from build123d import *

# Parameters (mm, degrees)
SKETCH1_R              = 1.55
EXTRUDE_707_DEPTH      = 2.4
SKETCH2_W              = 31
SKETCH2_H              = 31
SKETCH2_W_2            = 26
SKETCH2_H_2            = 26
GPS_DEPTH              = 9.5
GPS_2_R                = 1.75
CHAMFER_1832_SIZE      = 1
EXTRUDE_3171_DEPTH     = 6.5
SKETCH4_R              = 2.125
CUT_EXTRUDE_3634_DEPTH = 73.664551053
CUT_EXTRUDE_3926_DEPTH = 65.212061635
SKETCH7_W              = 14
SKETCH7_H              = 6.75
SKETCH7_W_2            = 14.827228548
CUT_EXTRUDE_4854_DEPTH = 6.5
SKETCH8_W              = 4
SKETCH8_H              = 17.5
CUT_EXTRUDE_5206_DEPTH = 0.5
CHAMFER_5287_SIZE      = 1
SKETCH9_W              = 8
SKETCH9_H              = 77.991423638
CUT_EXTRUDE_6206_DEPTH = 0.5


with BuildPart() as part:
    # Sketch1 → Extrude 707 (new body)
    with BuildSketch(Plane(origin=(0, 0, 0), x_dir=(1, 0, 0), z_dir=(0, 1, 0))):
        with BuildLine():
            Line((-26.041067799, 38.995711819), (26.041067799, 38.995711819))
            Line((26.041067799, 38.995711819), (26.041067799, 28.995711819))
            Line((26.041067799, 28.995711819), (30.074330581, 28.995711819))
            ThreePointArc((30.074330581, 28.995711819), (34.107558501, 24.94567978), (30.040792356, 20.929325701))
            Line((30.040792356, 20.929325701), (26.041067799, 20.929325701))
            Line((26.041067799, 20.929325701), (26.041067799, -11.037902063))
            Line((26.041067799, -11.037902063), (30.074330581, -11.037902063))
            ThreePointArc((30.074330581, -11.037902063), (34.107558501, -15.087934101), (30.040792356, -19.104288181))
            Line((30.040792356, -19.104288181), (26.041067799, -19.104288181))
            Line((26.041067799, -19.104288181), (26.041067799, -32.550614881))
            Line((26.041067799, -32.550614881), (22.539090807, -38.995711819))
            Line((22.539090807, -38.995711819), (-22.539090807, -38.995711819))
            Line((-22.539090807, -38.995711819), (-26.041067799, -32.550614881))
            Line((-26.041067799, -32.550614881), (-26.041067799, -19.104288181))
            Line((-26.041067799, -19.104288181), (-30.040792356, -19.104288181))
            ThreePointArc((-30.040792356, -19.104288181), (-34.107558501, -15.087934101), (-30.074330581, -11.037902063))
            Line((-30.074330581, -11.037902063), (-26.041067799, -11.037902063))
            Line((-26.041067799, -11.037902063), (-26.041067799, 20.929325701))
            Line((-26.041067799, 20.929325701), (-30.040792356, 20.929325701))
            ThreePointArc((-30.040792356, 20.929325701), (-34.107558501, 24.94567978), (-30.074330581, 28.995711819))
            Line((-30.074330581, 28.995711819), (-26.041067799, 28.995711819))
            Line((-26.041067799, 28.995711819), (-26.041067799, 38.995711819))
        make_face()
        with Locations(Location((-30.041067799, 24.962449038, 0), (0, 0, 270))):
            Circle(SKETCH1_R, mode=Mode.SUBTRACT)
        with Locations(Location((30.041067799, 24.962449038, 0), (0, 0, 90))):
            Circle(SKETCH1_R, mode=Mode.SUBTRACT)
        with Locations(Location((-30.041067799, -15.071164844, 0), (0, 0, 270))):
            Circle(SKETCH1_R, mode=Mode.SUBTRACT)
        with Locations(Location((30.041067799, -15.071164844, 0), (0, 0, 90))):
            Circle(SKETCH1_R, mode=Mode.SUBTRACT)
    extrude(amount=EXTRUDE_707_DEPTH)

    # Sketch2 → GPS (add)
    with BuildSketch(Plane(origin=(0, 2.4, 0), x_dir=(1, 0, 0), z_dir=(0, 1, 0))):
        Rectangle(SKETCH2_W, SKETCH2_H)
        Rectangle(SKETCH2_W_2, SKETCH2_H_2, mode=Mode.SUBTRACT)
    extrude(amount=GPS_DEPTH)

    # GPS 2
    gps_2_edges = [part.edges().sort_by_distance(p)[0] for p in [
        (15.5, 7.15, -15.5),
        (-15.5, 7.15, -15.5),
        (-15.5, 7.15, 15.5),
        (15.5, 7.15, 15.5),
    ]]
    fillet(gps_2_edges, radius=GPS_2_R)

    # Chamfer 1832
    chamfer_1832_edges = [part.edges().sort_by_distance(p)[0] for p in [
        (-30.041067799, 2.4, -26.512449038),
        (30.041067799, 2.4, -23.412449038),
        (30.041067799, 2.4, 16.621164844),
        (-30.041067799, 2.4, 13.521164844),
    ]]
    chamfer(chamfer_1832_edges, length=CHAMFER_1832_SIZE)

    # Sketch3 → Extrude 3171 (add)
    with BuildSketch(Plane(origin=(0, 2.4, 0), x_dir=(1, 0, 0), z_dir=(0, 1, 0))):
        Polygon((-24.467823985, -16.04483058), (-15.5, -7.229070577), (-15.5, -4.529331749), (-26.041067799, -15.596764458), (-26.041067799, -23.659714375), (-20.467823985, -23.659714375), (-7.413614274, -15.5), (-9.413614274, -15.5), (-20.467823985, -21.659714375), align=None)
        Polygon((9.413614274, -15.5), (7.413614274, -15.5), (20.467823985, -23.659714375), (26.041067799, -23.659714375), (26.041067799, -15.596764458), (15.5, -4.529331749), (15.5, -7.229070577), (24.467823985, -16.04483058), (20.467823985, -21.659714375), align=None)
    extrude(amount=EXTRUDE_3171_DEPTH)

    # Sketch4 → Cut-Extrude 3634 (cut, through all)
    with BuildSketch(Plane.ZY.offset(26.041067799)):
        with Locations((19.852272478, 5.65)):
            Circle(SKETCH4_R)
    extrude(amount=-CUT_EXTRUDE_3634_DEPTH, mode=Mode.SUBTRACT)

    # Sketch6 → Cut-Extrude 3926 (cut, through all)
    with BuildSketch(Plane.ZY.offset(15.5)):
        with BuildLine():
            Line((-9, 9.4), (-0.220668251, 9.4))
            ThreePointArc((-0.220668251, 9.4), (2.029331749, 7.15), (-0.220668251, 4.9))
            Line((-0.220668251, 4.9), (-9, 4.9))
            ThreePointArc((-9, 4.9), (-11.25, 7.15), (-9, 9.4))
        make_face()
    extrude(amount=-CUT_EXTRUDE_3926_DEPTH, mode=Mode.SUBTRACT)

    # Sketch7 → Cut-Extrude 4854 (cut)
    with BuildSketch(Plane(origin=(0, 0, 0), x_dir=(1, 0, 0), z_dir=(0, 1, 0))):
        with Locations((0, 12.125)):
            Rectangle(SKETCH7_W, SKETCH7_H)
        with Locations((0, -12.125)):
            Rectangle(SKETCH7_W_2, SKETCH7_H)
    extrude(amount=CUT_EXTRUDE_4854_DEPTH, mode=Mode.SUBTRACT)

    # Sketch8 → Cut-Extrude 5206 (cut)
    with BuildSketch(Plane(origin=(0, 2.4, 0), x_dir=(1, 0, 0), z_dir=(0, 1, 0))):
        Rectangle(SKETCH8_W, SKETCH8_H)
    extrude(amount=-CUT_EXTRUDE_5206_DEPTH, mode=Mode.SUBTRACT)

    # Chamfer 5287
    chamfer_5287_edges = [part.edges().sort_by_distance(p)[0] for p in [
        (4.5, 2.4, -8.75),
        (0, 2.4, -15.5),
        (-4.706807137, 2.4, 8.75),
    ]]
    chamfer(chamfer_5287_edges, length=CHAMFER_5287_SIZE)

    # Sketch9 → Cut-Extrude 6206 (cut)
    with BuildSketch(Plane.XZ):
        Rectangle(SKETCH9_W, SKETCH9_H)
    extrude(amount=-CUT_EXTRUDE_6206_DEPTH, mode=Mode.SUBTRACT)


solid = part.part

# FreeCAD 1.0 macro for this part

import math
import FreeCAD as App
import Part
import Sketcher
from FreeCAD import Vector


def edges_at(feature, points):
    """Names of the edges that pass closest to the given points."""
    edges = feature.Shape.Edges
    near = lambda p: min(range(len(edges)), key=lambda i: edges[i].distToShape(Part.Vertex(*p))[0])
    return sorted({f"Edge{near(p) + 1}" for p in points})


def add_polygon(sketch, points):
    """Adds a closed chain of lines whose ends are joined by coincident constraints."""
    first, n = sketch.GeometryCount, len(points)
    for a, b in zip(points, points[1:] + points[:1]):
        sketch.addGeometry(Part.LineSegment(App.Vector(*a, 0), App.Vector(*b, 0)), False)
    for i in range(n):
        sketch.addConstraint(Sketcher.Constraint("Coincident", first + i, 2, first + (i + 1) % n, 1))

doc = App.newDocument("Part")
body = doc.addObject("PartDesign::Body", "Body")

# Sketch on XZ plane
sketch1 = body.newObject("Sketcher::SketchObject", "Sketch")
sketch1.AttachmentSupport = (doc.getObject("XZ_Plane"), [""])
sketch1.MapMode = "FlatFace"
sketch1.addGeometry(Part.LineSegment(Vector(26.041068, -38.995712, 0), Vector(-26.041068, -38.995712, 0)), False)
sketch1.addGeometry(Part.LineSegment(Vector(-26.041068, -38.995712, 0), Vector(-26.041068, -28.995712, 0)), False)
sketch1.addGeometry(Part.LineSegment(Vector(-26.041068, -28.995712, 0), Vector(-30.074331, -28.995712, 0)), False)
sketch1.addGeometry(Part.ArcOfCircle(Part.Circle(Vector(-30.074331, -24.962449, 0), Vector(0, 0, 1), 4.033263), math.radians(89.523557), math.radians(270)), False)
sketch1.addGeometry(Part.LineSegment(Vector(-30.040792, -20.929326, 0), Vector(-26.041068, -20.929326, 0)), False)
sketch1.addGeometry(Part.LineSegment(Vector(-26.041068, -20.929326, 0), Vector(-26.041068, 11.037902, 0)), False)
sketch1.addGeometry(Part.LineSegment(Vector(-26.041068, 11.037902, 0), Vector(-30.074331, 11.037902, 0)), False)
sketch1.addGeometry(Part.ArcOfCircle(Part.Circle(Vector(-30.074331, 15.071165, 0), Vector(0, 0, 1), 4.033263), math.radians(89.523557), math.radians(270)), False)
sketch1.addGeometry(Part.LineSegment(Vector(-30.040792, 19.104288, 0), Vector(-26.041068, 19.104288, 0)), False)
sketch1.addGeometry(Part.LineSegment(Vector(-26.041068, 19.104288, 0), Vector(-26.041068, 32.550615, 0)), False)
sketch1.addGeometry(Part.LineSegment(Vector(-26.041068, 32.550615, 0), Vector(-22.539091, 38.995712, 0)), False)
sketch1.addGeometry(Part.LineSegment(Vector(-22.539091, 38.995712, 0), Vector(22.539091, 38.995712, 0)), False)
sketch1.addGeometry(Part.LineSegment(Vector(22.539091, 38.995712, 0), Vector(26.041068, 32.550615, 0)), False)
sketch1.addGeometry(Part.LineSegment(Vector(26.041068, 32.550615, 0), Vector(26.041068, 19.104288, 0)), False)
sketch1.addGeometry(Part.LineSegment(Vector(26.041068, 19.104288, 0), Vector(30.040792, 19.104288, 0)), False)
sketch1.addGeometry(Part.ArcOfCircle(Part.Circle(Vector(30.074331, 15.071165, 0), Vector(0, 0, 1), 4.033263), math.radians(-90), math.radians(90.476443)), False)
sketch1.addGeometry(Part.LineSegment(Vector(30.074331, 11.037902, 0), Vector(26.041068, 11.037902, 0)), False)
sketch1.addGeometry(Part.LineSegment(Vector(26.041068, 11.037902, 0), Vector(26.041068, -20.929326, 0)), False)
sketch1.addGeometry(Part.LineSegment(Vector(26.041068, -20.929326, 0), Vector(30.040792, -20.929326, 0)), False)
sketch1.addGeometry(Part.ArcOfCircle(Part.Circle(Vector(30.074331, -24.962449, 0), Vector(0, 0, 1), 4.033263), math.radians(-90), math.radians(90.476443)), False)
sketch1.addGeometry(Part.LineSegment(Vector(30.074331, -28.995712, 0), Vector(26.041068, -28.995712, 0)), False)
sketch1.addGeometry(Part.LineSegment(Vector(26.041068, -28.995712, 0), Vector(26.041068, -38.995712, 0)), False)
sketch1.addGeometry(Part.Circle(Vector(30.041068, 15.071165, 0), Vector(0, 0, 1), 1.55), False)
sketch1.addGeometry(Part.Circle(Vector(-30.041068, 15.071165, 0), Vector(0, 0, 1), 1.55), False)
sketch1.addGeometry(Part.Circle(Vector(30.041068, -24.962449, 0), Vector(0, 0, 1), 1.55), False)
sketch1.addGeometry(Part.Circle(Vector(-30.041068, -24.962449, 0), Vector(0, 0, 1), 1.55), False)
sketch1.addConstraint(Sketcher.Constraint("Coincident", 0, 2, 1, 1))
sketch1.addConstraint(Sketcher.Constraint("Coincident", 1, 2, 2, 1))
sketch1.addConstraint(Sketcher.Constraint("Tangent", 2, 2, 3, 2))
sketch1.addConstraint(Sketcher.Constraint("Coincident", 3, 1, 4, 1))
sketch1.addConstraint(Sketcher.Constraint("Coincident", 4, 2, 5, 1))
sketch1.addConstraint(Sketcher.Constraint("Coincident", 5, 2, 6, 1))
sketch1.addConstraint(Sketcher.Constraint("Tangent", 6, 2, 7, 2))
sketch1.addConstraint(Sketcher.Constraint("Coincident", 7, 1, 8, 1))
sketch1.addConstraint(Sketcher.Constraint("Coincident", 8, 2, 9, 1))
sketch1.addConstraint(Sketcher.Constraint("Coincident", 9, 2, 10, 1))
sketch1.addConstraint(Sketcher.Constraint("Coincident", 10, 2, 11, 1))
sketch1.addConstraint(Sketcher.Constraint("Coincident", 11, 2, 12, 1))
sketch1.addConstraint(Sketcher.Constraint("Coincident", 12, 2, 13, 1))
sketch1.addConstraint(Sketcher.Constraint("Coincident", 13, 2, 14, 1))
sketch1.addConstraint(Sketcher.Constraint("Coincident", 14, 2, 15, 2))
sketch1.addConstraint(Sketcher.Constraint("Tangent", 15, 1, 16, 1))
sketch1.addConstraint(Sketcher.Constraint("Coincident", 16, 2, 17, 1))
sketch1.addConstraint(Sketcher.Constraint("Coincident", 17, 2, 18, 1))
sketch1.addConstraint(Sketcher.Constraint("Coincident", 18, 2, 19, 2))
sketch1.addConstraint(Sketcher.Constraint("Tangent", 19, 1, 20, 1))
sketch1.addConstraint(Sketcher.Constraint("Coincident", 20, 2, 21, 1))
sketch1.addConstraint(Sketcher.Constraint("Coincident", 21, 2, 0, 1))
sketch1.addConstraint(Sketcher.Constraint("Horizontal", 0))
sketch1.addConstraint(Sketcher.Constraint("Vertical", 1))
sketch1.addConstraint(Sketcher.Constraint("Horizontal", 2))
sketch1.addConstraint(Sketcher.Constraint("Horizontal", 4))
sketch1.addConstraint(Sketcher.Constraint("Vertical", 5))
sketch1.addConstraint(Sketcher.Constraint("Horizontal", 6))
sketch1.addConstraint(Sketcher.Constraint("Horizontal", 8))
sketch1.addConstraint(Sketcher.Constraint("Vertical", 9))
sketch1.addConstraint(Sketcher.Constraint("Horizontal", 11))
sketch1.addConstraint(Sketcher.Constraint("Vertical", 13))
sketch1.addConstraint(Sketcher.Constraint("Horizontal", 14))
sketch1.addConstraint(Sketcher.Constraint("Horizontal", 16))
sketch1.addConstraint(Sketcher.Constraint("Vertical", 17))
sketch1.addConstraint(Sketcher.Constraint("Horizontal", 18))
sketch1.addConstraint(Sketcher.Constraint("Horizontal", 20))
sketch1.addConstraint(Sketcher.Constraint("Vertical", 21))
sketch1.addConstraint(Sketcher.Constraint("Equal", 3, 7))
sketch1.addConstraint(Sketcher.Constraint("Equal", 7, 15))
sketch1.addConstraint(Sketcher.Constraint("Equal", 15, 19))
sketch1.addConstraint(Sketcher.Constraint("Equal", 22, 23))
sketch1.addConstraint(Sketcher.Constraint("Equal", 23, 24))
sketch1.addConstraint(Sketcher.Constraint("Equal", 24, 25))
sketch1.addConstraint(Sketcher.Constraint("Symmetric", 7, 3, 15, 3, -2))
sketch1.addConstraint(Sketcher.Constraint("Symmetric", 3, 3, 19, 3, -2))
sketch1.addConstraint(Sketcher.Constraint("Symmetric", 22, 3, 23, 3, -2))
sketch1.addConstraint(Sketcher.Constraint("Symmetric", 24, 3, 25, 3, -2))
sketch1.addConstraint(Sketcher.Constraint("Symmetric", 9, 2, 12, 2, -2))
sketch1.addConstraint(Sketcher.Constraint("Symmetric", 4, 2, 17, 2, -2))
sketch1.addConstraint(Sketcher.Constraint("Horizontal", 15, 3, 22, 3))
sketch1.addConstraint(Sketcher.Constraint("Horizontal", 19, 3, 24, 3))
sketch1.addConstraint(Sketcher.Constraint("Horizontal", 8, 2, 13, 2))
sketch1.addConstraint(Sketcher.Constraint("Vertical", 3, 3, 7, 3))
sketch1.addConstraint(Sketcher.Constraint("Vertical", 22, 3, 24, 3))
sketch1.addConstraint(Sketcher.Constraint("Vertical", 1, 2, 4, 2))
sketch1.addConstraint(Sketcher.Constraint("Vertical", 3, 1, 7, 1))
sketch1.addConstraint(Sketcher.Constraint("Vertical", 5, 2, 8, 2))
sketch1.addConstraint(Sketcher.Constraint("Vertical", 17, 2, 20, 2))
sketch1.addConstraint(Sketcher.Constraint("Equal", 10, 12))
sketch1.addConstraint(Sketcher.Constraint("Diameter", 22, 3.1))
sketch1.addConstraint(Sketcher.Constraint("DistanceY", 1, 1, 1, 2, 10.0))
sketch1.addConstraint(Sketcher.Constraint("DistanceX", 25, 3, 0, 2, 4.0))
sketch1.addConstraint(Sketcher.Constraint("Radius", 3, 4.033263))
sketch1.addConstraint(Sketcher.Constraint("DistanceX", 11, 1, 11, 2, 45.078182))
sketch1.addConstraint(Sketcher.Constraint("DistanceX", 7, 3, 22, 3, 60.115398))
sketch1.addConstraint(Sketcher.Constraint("DistanceX", 7, 1, 10, 2, 7.501702))
sketch1.addConstraint(Sketcher.Constraint("Distance", 10, 7.335061))
sketch1.addConstraint(Sketcher.Constraint("DistanceX", 0, 2, 0, 1, 52.082136))
sketch1.addConstraint(Sketcher.Constraint("DistanceY", 5, 1, 5, 2, 31.967228))
sketch1.addConstraint(Sketcher.Constraint("DistanceY", 9, 1, 9, 2, 13.446327))
sketch1.addConstraint(Sketcher.Constraint("DistanceY", 3, 3, -1, 1, 24.962449))
pad1 = body.newObject("PartDesign::Pad", "Pad")
pad1.Profile = sketch1
pad1.Length = 2.4
pad1.Reversed = True

# Sketch on XZ plane
sketch2 = body.newObject("Sketcher::SketchObject", "Sketch001")
sketch2.AttachmentSupport = (doc.getObject("XZ_Plane"), [""])
sketch2.MapMode = "FlatFace"
sketch2.AttachmentOffset = App.Placement(Vector(0, 0, -2.4), App.Rotation())
add_polygon(sketch2, [(-16, -16), (-16, 16), (16, 16), (16, -16)])  # lines 0-3
add_polygon(sketch2, [(13, 13), (-13, 13), (-13, -13), (13, -13)])  # lines 4-7
sketch2.addConstraint(Sketcher.Constraint("Vertical", 0))
sketch2.addConstraint(Sketcher.Constraint("Horizontal", 1))
sketch2.addConstraint(Sketcher.Constraint("Vertical", 2))
sketch2.addConstraint(Sketcher.Constraint("Horizontal", 3))
sketch2.addConstraint(Sketcher.Constraint("Horizontal", 4))
sketch2.addConstraint(Sketcher.Constraint("Vertical", 5))
sketch2.addConstraint(Sketcher.Constraint("Horizontal", 6))
sketch2.addConstraint(Sketcher.Constraint("Vertical", 7))
sketch2.addConstraint(Sketcher.Constraint("Symmetric", 0, 2, 2, 2, -1, 1))
sketch2.addConstraint(Sketcher.Constraint("Symmetric", 4, 2, 6, 2, -1, 1))
sketch2.addConstraint(Sketcher.Constraint("Equal", 3, 0))
sketch2.addConstraint(Sketcher.Constraint("Equal", 6, 5))
sketch2.addConstraint(Sketcher.Constraint("DistanceX", 1, 1, 1, 2, 31.0))
sketch2.addConstraint(Sketcher.Constraint("DistanceX", 4, 2, 4, 1, 26.0))
pad2 = body.newObject("PartDesign::Pad", "Pad001")
pad2.Profile = sketch2
pad2.Length = 9.5
pad2.Reversed = True
doc.recompute()

fillet = body.newObject("PartDesign::Fillet", "Fillet")
fillet.Base = (pad2, edges_at(pad2, [
    (15.5, 7.15, -15.5),
    (-15.5, 7.15, -15.5),
    (-15.5, 7.15, 15.5),
    (15.5, 7.15, 15.5),
]))
fillet.Radius = 1.75
doc.recompute()

chamfer = body.newObject("PartDesign::Chamfer", "Chamfer")
chamfer.Base = (fillet, edges_at(fillet, [
    (-30.041, 2.4, -26.512),
    (30.041, 2.4, -23.412),
    (30.041, 2.4, 16.621),
    (-30.041, 2.4, 13.521),
]))
chamfer.Size = 1

# Sketch on XZ plane
sketch3 = body.newObject("Sketcher::SketchObject", "Sketch002")
sketch3.AttachmentSupport = (doc.getObject("XZ_Plane"), [""])
sketch3.MapMode = "FlatFace"
sketch3.AttachmentOffset = App.Placement(Vector(0, 0, -2.4), App.Rotation())
add_polygon(sketch3, [(-24.5, 16), (-15.5, 7.2), (-15.5, 4.5), (-26, 15.6), (-26, 23.7), (-20.5, 23.7), (-7.4, 15.5), (-9.4, 15.5), (-20.5, 21.7)])  # lines 0-8
add_polygon(sketch3, [(9.4, 15.5), (7.4, 15.5), (20.5, 23.7), (26, 23.7), (26, 15.6), (15.5, 4.5), (15.5, 7.2), (24.5, 16), (20.5, 21.7)])  # lines 9-17
sketch3.addConstraint(Sketcher.Constraint("Vertical", 1))
sketch3.addConstraint(Sketcher.Constraint("Vertical", 3))
sketch3.addConstraint(Sketcher.Constraint("Horizontal", 4))
sketch3.addConstraint(Sketcher.Constraint("Horizontal", 6))
sketch3.addConstraint(Sketcher.Constraint("Horizontal", 9))
sketch3.addConstraint(Sketcher.Constraint("Horizontal", 11))
sketch3.addConstraint(Sketcher.Constraint("Vertical", 12))
sketch3.addConstraint(Sketcher.Constraint("Vertical", 14))
sketch3.addConstraint(Sketcher.Constraint("Symmetric", 5, 2, 9, 2, -2))
sketch3.addConstraint(Sketcher.Constraint("Symmetric", 4, 2, 10, 2, -2))
sketch3.addConstraint(Sketcher.Constraint("Symmetric", 2, 2, 12, 2, -2))
sketch3.addConstraint(Sketcher.Constraint("Symmetric", 1, 2, 13, 2, -2))
sketch3.addConstraint(Sketcher.Constraint("Symmetric", 8, 2, 15, 2, -2))
sketch3.addConstraint(Sketcher.Constraint("Symmetric", 7, 2, 16, 2, -2))
sketch3.addConstraint(Sketcher.Constraint("Horizontal", 0, 2, 14, 2))
sketch3.addConstraint(Sketcher.Constraint("Vertical", 4, 2, 7, 2))
sketch3.addConstraint(Sketcher.Constraint("Equal", 6, 9))
sketch3.addConstraint(Sketcher.Constraint("DistanceX", 6, 2, 6, 1, 2.0))
sketch3.addConstraint(Sketcher.Constraint("DistanceY", 7, 2, 4, 2, 2.0))
sketch3.addConstraint(Sketcher.Constraint("DistanceX", 8, 2, 7, 2, 4.0))
sketch3.addConstraint(Sketcher.Constraint("DistanceX", 0, 2, -1, 1, 15.5))
sketch3.addConstraint(Sketcher.Constraint("DistanceY", -1, 1, 5, 2, 15.5))
sketch3.addConstraint(Sketcher.Constraint("DistanceY", 1, 2, 1, 1, 2.699739))
sketch3.addConstraint(Sketcher.Constraint("DistanceY", 3, 1, 3, 2, 8.06295))
sketch3.addConstraint(Sketcher.Constraint("DistanceY", 13, 2, 15, 2, 11.515499))
sketch3.addConstraint(Sketcher.Constraint("Distance", 2, 15.28405))
sketch3.addConstraint(Sketcher.Constraint("Distance", 7, 12.65455))
sketch3.addConstraint(Sketcher.Constraint("DistanceX", 4, 1, 4, 2, 5.573244))
sketch3.addConstraint(Sketcher.Constraint("DistanceY", -1, 1, 0, 2, 7.229071))
sketch3.addConstraint(Sketcher.Constraint("DistanceX", 4, 2, 5, 2, 13.05421))
pad3 = body.newObject("PartDesign::Pad", "Pad002")
pad3.Profile = sketch3
pad3.Length = 6.5
pad3.Reversed = True

# Sketch on YZ plane
sketch4 = body.newObject("Sketcher::SketchObject", "Sketch003")
sketch4.AttachmentSupport = (doc.getObject("YZ_Plane"), [""])
sketch4.MapMode = "FlatFace"
sketch4.AttachmentOffset = App.Placement(Vector(0, 0, -26.041068), App.Rotation())
sketch4.addGeometry(Part.Circle(Vector(5.7, 19.9, 0), Vector(0, 0, 1), 2.1), False)
sketch4.addConstraint(Sketcher.Constraint("Diameter", 0, 4.25))
sketch4.addConstraint(Sketcher.Constraint("DistanceX", -1, 1, 0, 3, 5.65))
sketch4.addConstraint(Sketcher.Constraint("DistanceY", -1, 1, 0, 3, 19.852272))
pocket1 = body.newObject("PartDesign::Pocket", "Pocket")
pocket1.Profile = sketch4
pocket1.Type = "ThroughAll"
pocket1.Reversed = True

# Sketch on YZ plane
sketch5 = body.newObject("Sketcher::SketchObject", "Sketch004")
sketch5.AttachmentSupport = (doc.getObject("YZ_Plane"), [""])
sketch5.MapMode = "FlatFace"
sketch5.AttachmentOffset = App.Placement(Vector(0, 0, -15.5), App.Rotation())
sketch5.addGeometry(Part.LineSegment(Vector(9.4, -0.2, 0), Vector(9.4, -9, 0)), False)
sketch5.addGeometry(Part.ArcOfCircle(Part.Circle(Vector(7.2, -9, 0), Vector(0, 0, 1), 2.2), math.radians(180), math.radians(360)), False)
sketch5.addGeometry(Part.LineSegment(Vector(4.9, -9, 0), Vector(4.9, -0.2, 0)), False)
sketch5.addGeometry(Part.ArcOfCircle(Part.Circle(Vector(7.2, -0.2, 0), Vector(0, 0, 1), 2.2), math.radians(0), math.radians(180)), False)
sketch5.addConstraint(Sketcher.Constraint("Tangent", 0, 2, 1, 2))
sketch5.addConstraint(Sketcher.Constraint("Tangent", 1, 1, 2, 1))
sketch5.addConstraint(Sketcher.Constraint("Tangent", 2, 2, 3, 2))
sketch5.addConstraint(Sketcher.Constraint("Tangent", 3, 1, 0, 1))
sketch5.addConstraint(Sketcher.Constraint("Vertical", 0))
sketch5.addConstraint(Sketcher.Constraint("Vertical", 2))
sketch5.addConstraint(Sketcher.Constraint("Radius", 1, 2.25))
sketch5.addConstraint(Sketcher.Constraint("DistanceY", 1, 3, -1, 1, 9.0))
sketch5.addConstraint(Sketcher.Constraint("DistanceX", -1, 1, 0, 2, 9.4))
sketch5.addConstraint(Sketcher.Constraint("DistanceY", 0, 2, 0, 1, 8.779332))
pocket2 = body.newObject("PartDesign::Pocket", "Pocket001")
pocket2.Profile = sketch5
pocket2.Type = "ThroughAll"
pocket2.Reversed = True

# Sketch on XZ plane
sketch6 = body.newObject("Sketcher::SketchObject", "Sketch005")
sketch6.AttachmentSupport = (doc.getObject("XZ_Plane"), [""])
sketch6.MapMode = "FlatFace"
add_polygon(sketch6, [(-7, -16), (-7, -9), (7, -9), (7, -16)])  # lines 0-3
add_polygon(sketch6, [(-7, 9), (-7, 16), (7, 16), (7, 9)])  # lines 4-7
sketch6.addConstraint(Sketcher.Constraint("Vertical", 0))
sketch6.addConstraint(Sketcher.Constraint("Horizontal", 1))
sketch6.addConstraint(Sketcher.Constraint("Vertical", 2))
sketch6.addConstraint(Sketcher.Constraint("Horizontal", 3))
sketch6.addConstraint(Sketcher.Constraint("Vertical", 4))
sketch6.addConstraint(Sketcher.Constraint("Horizontal", 5))
sketch6.addConstraint(Sketcher.Constraint("Vertical", 6))
sketch6.addConstraint(Sketcher.Constraint("Horizontal", 7))
sketch6.addConstraint(Sketcher.Constraint("Equal", 2, 4))
sketch6.addConstraint(Sketcher.Constraint("DistanceX", 1, 1, 1, 2, 14.0))
sketch6.addConstraint(Sketcher.Constraint("DistanceX", 0, 2, -1, 1, 7.0))
sketch6.addConstraint(Sketcher.Constraint("DistanceY", 3, 2, 4, 2, 31.0))
sketch6.addConstraint(Sketcher.Constraint("DistanceY", 0, 1, 0, 2, 6.75))
sketch6.addConstraint(Sketcher.Constraint("DistanceY", 2, 2, -1, 1, 15.5))
sketch6.addConstraint(Sketcher.Constraint("DistanceX", 5, 1, 5, 2, 14.827229))
sketch6.addConstraint(Sketcher.Constraint("DistanceX", 4, 2, -1, 1, 7.413614))
pocket3 = body.newObject("PartDesign::Pocket", "Pocket002")
pocket3.Profile = sketch6
pocket3.Length = 6.5

# Sketch on XZ plane
sketch7 = body.newObject("Sketcher::SketchObject", "Sketch006")
sketch7.AttachmentSupport = (doc.getObject("XZ_Plane"), [""])
sketch7.MapMode = "FlatFace"
sketch7.AttachmentOffset = App.Placement(Vector(0, 0, -2.4), App.Rotation())
add_polygon(sketch7, [(-2, -8.8), (-2, 8.8), (2, 8.8), (2, -8.8)])  # lines 0-3
sketch7.addConstraint(Sketcher.Constraint("Vertical", 0))
sketch7.addConstraint(Sketcher.Constraint("Horizontal", 1))
sketch7.addConstraint(Sketcher.Constraint("Vertical", 2))
sketch7.addConstraint(Sketcher.Constraint("Horizontal", 3))
sketch7.addConstraint(Sketcher.Constraint("Symmetric", 0, 2, 2, 2, -1, 1))
sketch7.addConstraint(Sketcher.Constraint("DistanceX", 1, 1, 1, 2, 4.0))
sketch7.addConstraint(Sketcher.Constraint("DistanceY", 0, 1, 0, 2, 17.5))
pocket4 = body.newObject("PartDesign::Pocket", "Pocket003")
pocket4.Profile = sketch7
pocket4.Length = 0.5
pocket4.Reversed = True
doc.recompute()

chamfer2 = body.newObject("PartDesign::Chamfer", "Chamfer001")
chamfer2.Base = (pocket4, edges_at(pocket4, [(4.5, 2.4, -8.75), (0, 2.4, -15.5), (-4.707, 2.4, 8.75)]))
chamfer2.Size = 1

# Sketch on XZ plane
sketch8 = body.newObject("Sketcher::SketchObject", "Sketch007")
sketch8.AttachmentSupport = (doc.getObject("XZ_Plane"), [""])
sketch8.MapMode = "FlatFace"
add_polygon(sketch8, [(-4, 39), (-4, -39), (4, -39), (4, 39)])  # lines 0-3
sketch8.addConstraint(Sketcher.Constraint("Vertical", 0))
sketch8.addConstraint(Sketcher.Constraint("Horizontal", 1))
sketch8.addConstraint(Sketcher.Constraint("Vertical", 2))
sketch8.addConstraint(Sketcher.Constraint("Horizontal", 3))
sketch8.addConstraint(Sketcher.Constraint("Symmetric", 0, 2, 2, 2, -1, 1))
sketch8.addConstraint(Sketcher.Constraint("DistanceX", 1, 1, 1, 2, 8.0))
sketch8.addConstraint(Sketcher.Constraint("DistanceY", 0, 2, 0, 1, 77.991424))
pocket5 = body.newObject("PartDesign::Pocket", "Pocket004")
pocket5.Profile = sketch8
pocket5.Length = 0.5

doc.recompute()
